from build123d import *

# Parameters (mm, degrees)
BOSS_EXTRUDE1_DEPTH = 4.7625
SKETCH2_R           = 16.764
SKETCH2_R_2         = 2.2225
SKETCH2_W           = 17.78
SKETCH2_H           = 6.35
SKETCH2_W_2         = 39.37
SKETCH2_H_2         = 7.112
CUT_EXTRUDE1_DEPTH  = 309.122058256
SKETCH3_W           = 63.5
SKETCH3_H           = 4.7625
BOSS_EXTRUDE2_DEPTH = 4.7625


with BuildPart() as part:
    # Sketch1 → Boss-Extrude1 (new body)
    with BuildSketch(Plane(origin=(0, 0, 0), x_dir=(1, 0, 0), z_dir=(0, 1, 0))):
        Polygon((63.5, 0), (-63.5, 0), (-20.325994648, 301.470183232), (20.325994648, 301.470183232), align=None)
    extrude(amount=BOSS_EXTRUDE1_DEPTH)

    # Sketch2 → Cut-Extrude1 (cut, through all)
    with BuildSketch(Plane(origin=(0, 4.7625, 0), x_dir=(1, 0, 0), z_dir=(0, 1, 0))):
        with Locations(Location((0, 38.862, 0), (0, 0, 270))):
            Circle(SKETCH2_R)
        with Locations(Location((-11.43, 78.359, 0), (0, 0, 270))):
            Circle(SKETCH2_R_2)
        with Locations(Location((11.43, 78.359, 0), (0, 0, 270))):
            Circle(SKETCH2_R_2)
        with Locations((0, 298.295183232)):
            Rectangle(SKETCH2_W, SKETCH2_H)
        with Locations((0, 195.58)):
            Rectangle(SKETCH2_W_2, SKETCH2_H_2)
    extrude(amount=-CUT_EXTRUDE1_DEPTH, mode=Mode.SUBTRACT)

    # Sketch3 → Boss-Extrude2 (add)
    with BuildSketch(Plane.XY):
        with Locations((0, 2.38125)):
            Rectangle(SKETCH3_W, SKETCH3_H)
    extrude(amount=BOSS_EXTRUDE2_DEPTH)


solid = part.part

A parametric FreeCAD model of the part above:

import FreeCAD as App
import Part
import Sketcher
from FreeCAD import Vector
Q = App.Units.Quantity

doc = App.newDocument("Part")
body = doc.addObject("PartDesign::Body", "Body")

# Sketch on XZ plane
sketch1 = body.newObject("Sketcher::SketchObject", "Sketch")
sketch1.AttachmentSupport = (doc.getObject("XZ_Plane"), [""])
sketch1.MapMode = "FlatFace"
sketch1.addGeometry([
    Part.LineSegment(Vector(-64, 0, 0), Vector(64, 0, 0)),
    Part.LineSegment(Vector(64, 0, 0), Vector(20, -301, 0)),
    Part.LineSegment(Vector(20, -301, 0), Vector(-20, -301, 0)),
    Part.LineSegment(Vector(-20, -301, 0), Vector(-64, 0, 0)),
], False)
sketch1.addConstraint([
    Sketcher.Constraint("Coincident", 0, 2, 1, 1),
    Sketcher.Constraint("Coincident", 1, 2, 2, 1),
    Sketcher.Constraint("Coincident", 2, 2, 3, 1),
    Sketcher.Constraint("Coincident", 3, 2, 0, 1),
    Sketcher.Constraint("Horizontal", 0),
    Sketcher.Constraint("Horizontal", 2),
    Sketcher.Constraint("Symmetric", 0, 2, 3, 2, -1, 1),
    Sketcher.Constraint("Equal", 1, 3),
    Sketcher.Constraint("DistanceX", 0, 1, 0, 2, Q("5 in")),
    Sketcher.Constraint("Distance", 1, Q("11.99 in")),
    Sketcher.Constraint("Angle", 1, Q("-98.15 deg")),
])
pad1 = body.newObject("PartDesign::Pad", "Pad")
pad1.Profile = sketch1
pad1.Length = Q("0.1875 in")
pad1.Reversed = True

# Sketch on XZ plane
sketch2 = body.newObject("Sketcher::SketchObject", "Sketch001")
sketch2.AttachmentSupport = (doc.getObject("XZ_Plane"), [""])
sketch2.MapMode = "FlatFace"
sketch2.AttachmentOffset = App.Placement(Vector(0, 0, -0.1875 * 25.4), App.Rotation())
sketch2.addGeometry([
    Part.Circle(Vector(0, -38.9, 0), Vector(0, 0, 1), 16.8),  # 0
    Part.Circle(Vector(-11.4, -78.4, 0), Vector(0, 0, 1), 2.2),  # 1
    Part.Circle(Vector(11.4, -78.4, 0), Vector(0, 0, 1), 2.2),  # 2
    Part.LineSegment(Vector(-8.9, -301.5, 0), Vector(-8.9, -295.1, 0)),  # 3
    Part.LineSegment(Vector(-8.9, -295.1, 0), Vector(8.9, -295.1, 0)),  # 4
    Part.LineSegment(Vector(8.9, -295.1, 0), Vector(8.9, -301.5, 0)),  # 5
    Part.LineSegment(Vector(8.9, -301.5, 0), Vector(-8.9, -301.5, 0)),  # 6
    Part.LineSegment(Vector(-19.7, -199.1, 0), Vector(-19.7, -192, 0)),  # 7
    Part.LineSegment(Vector(-19.7, -192, 0), Vector(19.7, -192, 0)),  # 8
    Part.LineSegment(Vector(19.7, -192, 0), Vector(19.7, -199.1, 0)),  # 9
    Part.LineSegment(Vector(19.7, -199.1, 0), Vector(-19.7, -199.1, 0)),  # 10
], False)
sketch2.addConstraint([
    Sketcher.Constraint("Coincident", 3, 2, 4, 1),
    Sketcher.Constraint("Coincident", 4, 2, 5, 1),
    Sketcher.Constraint("Coincident", 5, 2, 6, 1),
    Sketcher.Constraint("Coincident", 6, 2, 3, 1),
    Sketcher.Constraint("Coincident", 7, 2, 8, 1),
    Sketcher.Constraint("Coincident", 8, 2, 9, 1),
    Sketcher.Constraint("Coincident", 9, 2, 10, 1),
    Sketcher.Constraint("Coincident", 10, 2, 7, 1),
    Sketcher.Constraint("Vertical", 3),
    Sketcher.Constraint("Horizontal", 4),
    Sketcher.Constraint("Vertical", 5),
    Sketcher.Constraint("Horizontal", 6),
    Sketcher.Constraint("Vertical", 7),
    Sketcher.Constraint("Horizontal", 8),
    Sketcher.Constraint("Vertical", 9),
    Sketcher.Constraint("Horizontal", 10),
    Sketcher.Constraint("Equal", 1, 2),
    Sketcher.Constraint("Symmetric", 1, 3, 2, 3, -2),
    Sketcher.Constraint("PointOnObject", 0, 3, -2),
    Sketcher.Constraint("Diameter", 0, Q("1.32 in")),
    Sketcher.Constraint("Diameter", 1, Q("0.175 in")),
    Sketcher.Constraint("DistanceX", 4, 1, 4, 2, Q("0.7 in")),
    Sketcher.Constraint("DistanceX", 8, 1, 8, 2, Q("1.55 in")),
    Sketcher.Constraint("DistanceY", 3, 1, 3, 2, Q("0.25 in")),
    Sketcher.Constraint("DistanceY", 7, 1, 7, 2, Q("0.28 in")),
    Sketcher.Constraint("DistanceX", 1, 3, 2, 3, Q("0.9 in")),
    Sketcher.Constraint("DistanceX", 1, 3, 3, 2, Q("0.1 in")),
    Sketcher.Constraint("DistanceY", 0, 3, -1, 1, Q("1.53 in")),
    Sketcher.Constraint("DistanceY", 7, 2, -1, 1, Q("7.56 in")),
    Sketcher.Constraint("DistanceY", 1, 3, -1, 1, Q("3.085 in")),
    Sketcher.Constraint("DistanceX", 7, 2, -1, 1, Q("0.775 in")),
    Sketcher.Constraint("DistanceY", 3, 2, -1, 1, 295.120183),
])
pocket1 = body.newObject("PartDesign::Pocket", "Pocket")
pocket1.Profile = sketch2
pocket1.Type = "ThroughAll"
pocket1.Reversed = True

# Sketch on XY plane
sketch3 = body.newObject("Sketcher::SketchObject", "Sketch002")
sketch3.AttachmentSupport = (doc.getObject("XY_Plane"), [""])
sketch3.MapMode = "FlatFace"
sketch3.addGeometry([
    Part.LineSegment(Vector(-31.8, 4.8, 0), Vector(-31.8, 0, 0)),
    Part.LineSegment(Vector(-31.8, 0, 0), Vector(31.8, 0, 0)),
    Part.LineSegment(Vector(31.8, 0, 0), Vector(31.8, 4.8, 0)),
    Part.LineSegment(Vector(31.8, 4.8, 0), Vector(-31.8, 4.8, 0)),
], False)
sketch3.addConstraint([
    Sketcher.Constraint("Coincident", 0, 2, 1, 1),
    Sketcher.Constraint("Coincident", 1, 2, 2, 1),
    Sketcher.Constraint("Coincident", 2, 2, 3, 1),
    Sketcher.Constraint("Coincident", 3, 2, 0, 1),
    Sketcher.Constraint("Vertical", 0),
    Sketcher.Constraint("Horizontal", 1),
    Sketcher.Constraint("Vertical", 2),
    Sketcher.Constraint("Horizontal", 3),
    Sketcher.Constraint("Symmetric", 0, 2, 1, 2, -1, 1),
    Sketcher.Constraint("DistanceX", 1, 1, 1, 2, Q("2.5 in")),
    Sketcher.Constraint("DistanceY", 0, 2, 0, 1, Q("0.1875 in")),
])
pad2 = body.newObject("PartDesign::Pad", "Pad001")
pad2.Profile = sketch3
pad2.Length = Q("0.1875 in")

doc.recompute()
